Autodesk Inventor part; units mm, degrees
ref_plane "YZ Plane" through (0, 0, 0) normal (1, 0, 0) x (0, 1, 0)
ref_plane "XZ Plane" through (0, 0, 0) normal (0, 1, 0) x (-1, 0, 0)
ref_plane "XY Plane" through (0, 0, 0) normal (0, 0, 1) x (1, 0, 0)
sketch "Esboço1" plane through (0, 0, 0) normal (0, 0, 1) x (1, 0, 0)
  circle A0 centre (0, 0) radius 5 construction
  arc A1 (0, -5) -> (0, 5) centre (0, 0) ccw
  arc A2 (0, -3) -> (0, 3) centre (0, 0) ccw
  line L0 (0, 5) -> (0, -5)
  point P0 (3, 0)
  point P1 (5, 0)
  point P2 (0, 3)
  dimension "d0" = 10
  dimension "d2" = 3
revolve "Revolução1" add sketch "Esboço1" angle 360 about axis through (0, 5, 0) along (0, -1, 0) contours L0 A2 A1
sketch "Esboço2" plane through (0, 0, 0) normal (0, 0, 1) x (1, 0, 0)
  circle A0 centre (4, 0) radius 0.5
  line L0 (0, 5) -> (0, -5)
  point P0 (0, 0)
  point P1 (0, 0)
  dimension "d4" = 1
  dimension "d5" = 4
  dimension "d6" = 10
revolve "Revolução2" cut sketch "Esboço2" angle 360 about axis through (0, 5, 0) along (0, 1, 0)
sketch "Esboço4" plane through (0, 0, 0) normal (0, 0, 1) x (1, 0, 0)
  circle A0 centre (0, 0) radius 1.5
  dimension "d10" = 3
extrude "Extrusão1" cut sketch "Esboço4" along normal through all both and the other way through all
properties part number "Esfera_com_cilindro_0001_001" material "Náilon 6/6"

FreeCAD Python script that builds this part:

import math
import FreeCAD as App
import Part
import Sketcher

V = App.Vector

doc = App.newDocument("Part")
params = doc.addObject("Spreadsheet::Sheet", "Params")
for row, (alias, value) in enumerate([
    ("sketch1_radius", "5 mm"),
    ("sketch1_radius2", "3 mm"),
    ("revolution_angle", "360 deg"),
    ("sketch2_diameter", "1 mm"),
    ("groove_angle", "360 deg"),
    ("sketch3_diameter", "3 mm"),
], start=1):
    params.set(f"A{row}", alias)
    params.set(f"B{row}", "=" + value)
    params.setAlias(f"B{row}", alias)

body = doc.addObject("PartDesign::Body", "Body")

sketch1 = body.newObject("Sketcher::SketchObject", "Sketch")
sketch1.AttachmentSupport = (doc.getObject("XY_Plane"), [""])
sketch1.MapMode = "FlatFace"
sketch1.addGeometry([
    Part.LineSegment(V(0, -3, 0), V(0, -5, 0)),
    Part.ArcOfCircle(Part.Circle(V(0, 0, 0), V(0, 0, 1), 5), math.radians(-90), math.radians(90)),
    Part.LineSegment(V(0, 5, 0), V(0, 3, 0)),
    Part.ArcOfCircle(Part.Circle(V(0, 0, 0), V(0, 0, 1), 3), math.radians(-90), math.radians(90)),
], False)
sketch1.addConstraint([
    Sketcher.Constraint("Coincident", 0, 2, 1, 1),
    Sketcher.Constraint("Coincident", 1, 2, 2, 1),
    Sketcher.Constraint("Coincident", 2, 2, 3, 2),
    Sketcher.Constraint("Coincident", 3, 1, 0, 1),
    Sketcher.Constraint("Vertical", 0),
    Sketcher.Constraint("Vertical", 2),
    Sketcher.Constraint("Coincident", 1, 3, -1, 1),
    Sketcher.Constraint("Coincident", 3, 3, -1, 1),
    Sketcher.Constraint("PointOnObject", 0, 2, -2),
    Sketcher.Constraint("PointOnObject", 1, 2, -2),
    Sketcher.Constraint("Radius", 1, 5.0),
    Sketcher.Constraint("Radius", 3, 3.0),
])
sketch1.setExpression("Constraints[10]", "Params.sketch1_radius")
sketch1.setExpression("Constraints[11]", "Params.sketch1_radius2")
revolution = body.newObject("PartDesign::Revolution", "Revolution")
revolution.Profile = sketch1
revolution.ReferenceAxis = (sketch1, ["V_Axis"])
revolution.setExpression("Angle", "Params.revolution_angle")

sketch2 = body.newObject("Sketcher::SketchObject", "Sketch001")
sketch2.AttachmentSupport = (doc.getObject("XY_Plane"), [""])
sketch2.MapMode = "FlatFace"
sketch2.addGeometry(Part.Circle(V(4, 0, 0), V(0, 0, 1), 0.5), False)
sketch2.addConstraint([
    Sketcher.Constraint("PointOnObject", 0, 3, -1),
    Sketcher.Constraint("Diameter", 0, 1.0),
    Sketcher.Constraint("DistanceX", -1, 1, 0, 3, 4.0),
])
sketch2.setExpression("Constraints[1]", "Params.sketch2_diameter")
groove = body.newObject("PartDesign::Groove", "Groove")
groove.Profile = sketch2
groove.ReferenceAxis = (sketch2, ["V_Axis"])
groove.setExpression("Angle", "Params.groove_angle")

sketch3 = body.newObject("Sketcher::SketchObject", "Sketch002")
sketch3.AttachmentSupport = (doc.getObject("XY_Plane"), [""])
sketch3.MapMode = "FlatFace"
sketch3.addGeometry(Part.Circle(V(0, 0, 0), V(0, 0, 1), 1.5), False)
sketch3.addConstraint([
    Sketcher.Constraint("Coincident", 0, 3, -1, 1),
    Sketcher.Constraint("Diameter", 0, 3.0),
])
sketch3.setExpression("Constraints[1]", "Params.sketch3_diameter")
pocket1 = body.newObject("PartDesign::Pocket", "Pocket")
pocket1.Profile = sketch3
pocket1.Type = "ThroughAll"
pocket1.Midplane = True

doc.recompute()
